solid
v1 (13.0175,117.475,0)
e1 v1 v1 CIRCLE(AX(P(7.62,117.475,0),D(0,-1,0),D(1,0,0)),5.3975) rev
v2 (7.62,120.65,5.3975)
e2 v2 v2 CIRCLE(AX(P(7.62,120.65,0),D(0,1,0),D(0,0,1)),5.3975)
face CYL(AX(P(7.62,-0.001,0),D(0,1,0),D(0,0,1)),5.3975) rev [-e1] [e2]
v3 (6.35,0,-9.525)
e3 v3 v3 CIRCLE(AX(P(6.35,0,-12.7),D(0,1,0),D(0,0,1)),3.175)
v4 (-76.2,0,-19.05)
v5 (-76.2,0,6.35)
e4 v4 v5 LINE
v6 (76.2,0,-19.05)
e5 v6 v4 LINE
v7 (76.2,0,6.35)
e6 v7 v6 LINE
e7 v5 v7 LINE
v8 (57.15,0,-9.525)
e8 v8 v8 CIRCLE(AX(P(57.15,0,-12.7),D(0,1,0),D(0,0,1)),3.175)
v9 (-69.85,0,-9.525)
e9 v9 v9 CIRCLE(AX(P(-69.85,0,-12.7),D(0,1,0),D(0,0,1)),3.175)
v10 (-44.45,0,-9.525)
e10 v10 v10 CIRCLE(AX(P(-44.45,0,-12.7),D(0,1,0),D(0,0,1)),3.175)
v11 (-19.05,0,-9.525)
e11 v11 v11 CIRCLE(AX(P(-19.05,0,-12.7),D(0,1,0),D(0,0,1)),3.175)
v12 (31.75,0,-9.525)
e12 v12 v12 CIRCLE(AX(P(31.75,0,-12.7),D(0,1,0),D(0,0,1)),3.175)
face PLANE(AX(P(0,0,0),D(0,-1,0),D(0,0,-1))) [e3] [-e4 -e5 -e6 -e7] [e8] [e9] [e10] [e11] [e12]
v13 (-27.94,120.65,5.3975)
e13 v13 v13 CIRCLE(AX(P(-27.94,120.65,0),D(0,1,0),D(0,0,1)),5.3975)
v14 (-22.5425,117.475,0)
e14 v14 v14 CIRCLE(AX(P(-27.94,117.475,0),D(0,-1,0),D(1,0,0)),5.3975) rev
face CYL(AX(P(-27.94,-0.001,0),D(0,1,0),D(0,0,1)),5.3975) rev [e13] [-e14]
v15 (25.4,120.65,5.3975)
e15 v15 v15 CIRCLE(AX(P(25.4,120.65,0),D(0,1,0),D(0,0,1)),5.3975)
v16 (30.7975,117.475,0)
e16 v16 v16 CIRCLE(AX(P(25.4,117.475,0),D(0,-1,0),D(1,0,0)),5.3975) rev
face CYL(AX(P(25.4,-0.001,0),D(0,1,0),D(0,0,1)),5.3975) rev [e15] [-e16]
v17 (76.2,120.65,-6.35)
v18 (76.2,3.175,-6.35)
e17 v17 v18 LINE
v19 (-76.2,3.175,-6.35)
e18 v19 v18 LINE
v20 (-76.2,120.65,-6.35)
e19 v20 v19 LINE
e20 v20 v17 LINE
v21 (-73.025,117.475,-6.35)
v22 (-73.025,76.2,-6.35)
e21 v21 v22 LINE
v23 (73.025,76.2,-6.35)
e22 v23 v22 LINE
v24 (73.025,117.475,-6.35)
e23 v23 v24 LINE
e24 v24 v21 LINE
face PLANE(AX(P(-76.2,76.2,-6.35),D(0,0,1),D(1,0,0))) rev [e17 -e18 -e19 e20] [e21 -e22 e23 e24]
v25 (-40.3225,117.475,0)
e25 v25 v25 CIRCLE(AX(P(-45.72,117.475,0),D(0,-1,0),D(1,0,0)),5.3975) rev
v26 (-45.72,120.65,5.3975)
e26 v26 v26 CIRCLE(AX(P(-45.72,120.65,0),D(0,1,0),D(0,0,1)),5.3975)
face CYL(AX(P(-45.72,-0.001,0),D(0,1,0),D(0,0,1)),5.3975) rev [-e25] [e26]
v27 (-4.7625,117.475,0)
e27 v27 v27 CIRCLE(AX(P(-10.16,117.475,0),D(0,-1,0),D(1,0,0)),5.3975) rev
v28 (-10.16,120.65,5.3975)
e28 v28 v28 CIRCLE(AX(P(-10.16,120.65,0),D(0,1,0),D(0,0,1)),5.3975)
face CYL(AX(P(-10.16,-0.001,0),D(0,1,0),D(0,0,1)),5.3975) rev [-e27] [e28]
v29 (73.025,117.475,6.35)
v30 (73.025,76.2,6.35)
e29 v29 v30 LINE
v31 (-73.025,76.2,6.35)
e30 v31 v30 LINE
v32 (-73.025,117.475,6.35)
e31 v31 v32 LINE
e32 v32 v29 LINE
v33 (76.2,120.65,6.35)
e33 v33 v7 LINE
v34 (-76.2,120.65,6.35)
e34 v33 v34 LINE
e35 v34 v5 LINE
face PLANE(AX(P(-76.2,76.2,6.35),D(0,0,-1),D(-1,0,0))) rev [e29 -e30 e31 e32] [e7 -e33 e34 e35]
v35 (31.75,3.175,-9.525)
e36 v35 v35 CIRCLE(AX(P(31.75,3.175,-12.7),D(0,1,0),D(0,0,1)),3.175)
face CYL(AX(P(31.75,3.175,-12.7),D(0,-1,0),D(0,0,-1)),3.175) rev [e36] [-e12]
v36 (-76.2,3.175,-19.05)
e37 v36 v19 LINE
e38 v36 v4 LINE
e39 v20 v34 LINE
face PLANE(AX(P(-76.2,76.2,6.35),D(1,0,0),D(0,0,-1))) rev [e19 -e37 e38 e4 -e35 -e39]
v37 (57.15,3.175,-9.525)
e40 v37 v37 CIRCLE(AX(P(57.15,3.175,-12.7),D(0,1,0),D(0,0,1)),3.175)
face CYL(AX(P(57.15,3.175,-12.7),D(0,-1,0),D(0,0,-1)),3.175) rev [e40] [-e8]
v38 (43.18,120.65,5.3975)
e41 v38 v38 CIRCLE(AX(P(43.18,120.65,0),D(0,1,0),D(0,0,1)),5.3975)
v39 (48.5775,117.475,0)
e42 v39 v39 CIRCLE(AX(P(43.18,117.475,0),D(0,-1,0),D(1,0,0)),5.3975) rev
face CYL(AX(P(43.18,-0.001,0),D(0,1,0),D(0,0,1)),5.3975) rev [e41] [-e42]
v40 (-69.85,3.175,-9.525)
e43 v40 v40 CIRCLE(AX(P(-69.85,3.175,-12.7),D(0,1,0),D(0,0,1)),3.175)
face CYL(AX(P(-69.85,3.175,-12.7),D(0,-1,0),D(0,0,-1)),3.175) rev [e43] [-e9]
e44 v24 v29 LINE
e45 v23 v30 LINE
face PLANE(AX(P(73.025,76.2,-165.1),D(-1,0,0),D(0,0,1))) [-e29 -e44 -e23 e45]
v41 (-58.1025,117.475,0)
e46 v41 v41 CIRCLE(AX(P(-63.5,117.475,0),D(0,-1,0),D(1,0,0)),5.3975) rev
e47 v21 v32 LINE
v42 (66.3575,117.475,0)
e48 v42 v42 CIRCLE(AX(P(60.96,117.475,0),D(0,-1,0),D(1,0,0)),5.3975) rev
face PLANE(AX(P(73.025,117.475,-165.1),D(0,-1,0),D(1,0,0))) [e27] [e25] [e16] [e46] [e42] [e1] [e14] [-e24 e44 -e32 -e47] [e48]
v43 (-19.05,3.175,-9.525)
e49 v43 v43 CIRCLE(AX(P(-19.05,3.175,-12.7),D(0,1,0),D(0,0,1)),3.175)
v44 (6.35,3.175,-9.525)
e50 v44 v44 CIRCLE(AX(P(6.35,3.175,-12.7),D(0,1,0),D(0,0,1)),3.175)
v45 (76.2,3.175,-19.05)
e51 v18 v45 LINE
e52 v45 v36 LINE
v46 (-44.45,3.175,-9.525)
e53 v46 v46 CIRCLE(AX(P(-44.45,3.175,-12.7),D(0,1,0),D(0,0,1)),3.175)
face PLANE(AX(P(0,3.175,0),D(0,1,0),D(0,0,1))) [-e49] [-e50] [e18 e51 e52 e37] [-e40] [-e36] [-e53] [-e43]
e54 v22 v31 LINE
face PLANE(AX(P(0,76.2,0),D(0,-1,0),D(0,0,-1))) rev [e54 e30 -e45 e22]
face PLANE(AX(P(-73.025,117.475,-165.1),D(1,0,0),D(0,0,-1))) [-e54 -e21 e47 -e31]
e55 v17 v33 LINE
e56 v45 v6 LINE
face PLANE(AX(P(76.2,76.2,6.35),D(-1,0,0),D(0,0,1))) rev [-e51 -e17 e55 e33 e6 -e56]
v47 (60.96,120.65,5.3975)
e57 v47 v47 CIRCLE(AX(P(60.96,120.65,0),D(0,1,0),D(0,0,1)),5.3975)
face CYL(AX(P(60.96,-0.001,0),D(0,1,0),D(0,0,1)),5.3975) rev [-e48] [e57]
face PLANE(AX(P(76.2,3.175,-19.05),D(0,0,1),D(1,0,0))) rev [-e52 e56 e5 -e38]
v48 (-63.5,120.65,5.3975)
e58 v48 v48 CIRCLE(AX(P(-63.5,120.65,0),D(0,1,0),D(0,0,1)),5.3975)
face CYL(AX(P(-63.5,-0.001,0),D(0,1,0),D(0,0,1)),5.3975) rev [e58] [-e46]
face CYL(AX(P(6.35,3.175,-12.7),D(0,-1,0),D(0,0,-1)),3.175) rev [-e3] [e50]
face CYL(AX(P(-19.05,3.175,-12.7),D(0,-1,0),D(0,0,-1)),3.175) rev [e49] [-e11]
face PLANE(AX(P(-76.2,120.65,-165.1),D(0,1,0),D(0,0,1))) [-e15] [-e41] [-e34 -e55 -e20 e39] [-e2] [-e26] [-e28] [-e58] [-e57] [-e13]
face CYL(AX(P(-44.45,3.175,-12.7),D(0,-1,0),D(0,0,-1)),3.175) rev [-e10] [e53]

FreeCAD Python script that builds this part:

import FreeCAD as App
import Part
import Sketcher
Q = App.Units.Quantity

doc = App.newDocument("Part")
params = doc.addObject("Spreadsheet::Sheet", "Params")
for row, (alias, value) in enumerate([
    ("sketch1_width", "6 in"),
    ("sketch1_height", "0.5 in"),
    ("pad1_length", "3 in"),
    ("sketch2_diameter", "0.25 in"),
    ("sketch2_width", "6 in"),
    ("sketch2_height", "0.5 in"),
    ("pad2_length", "0.125 in"),
    ("sketch3_width", "6 in"),
    ("sketch3_width2", "5.75 in"),
    ("sketch3_height", "1.75 in"),
    ("sketch3_height2", "1.625 in"),
    ("pad3_length", "0.5 in"),
    ("sketch4_diameter", "0.425 in"),
    ("sketch5_diameter", "0.425 in"),
    ("sketch6_diameter", "0.425 in"),
    ("sketch7_diameter", "0.425 in"),
    ("sketch8_diameter", "0.425 in"),
    ("sketch9_diameter", "0.425 in"),
    ("sketch10_diameter", "0.425 in"),
    ("sketch11_diameter", "0.425 in"),
], start=1):
    params.set(f"A{row}", alias)
    params.set(f"B{row}", "=" + value)
    params.setAlias(f"B{row}", alias)

body = doc.addObject("PartDesign::Body", "Body")

# Sketch on XZ plane
sketch1 = doc.addObject("Sketcher::SketchObject", "Sketch")
body.addObject(sketch1)
sketch1.AttachmentSupport = (doc.XZ_Plane, [""])
sketch1.MapMode = "FlatFace"
sketch1.addGeometry([
    Part.LineSegment(App.Vector(-76, -6, 0), App.Vector(-76, 6, 0)),
    Part.LineSegment(App.Vector(-76, 6, 0), App.Vector(76, 6, 0)),
    Part.LineSegment(App.Vector(76, 6, 0), App.Vector(76, -6, 0)),
    Part.LineSegment(App.Vector(76, -6, 0), App.Vector(-76, -6, 0)),
], False)
sketch1.addConstraint([
    Sketcher.Constraint("Coincident", 0, 2, 1, 1),
    Sketcher.Constraint("Coincident", 1, 2, 2, 1),
    Sketcher.Constraint("Coincident", 2, 2, 3, 1),
    Sketcher.Constraint("Coincident", 3, 2, 0, 1),
    Sketcher.Constraint("Vertical", 0),
    Sketcher.Constraint("Horizontal", 1),
    Sketcher.Constraint("Vertical", 2),
    Sketcher.Constraint("Horizontal", 3),
    Sketcher.Constraint("Symmetric", 0, 2, 2, 2, -1, 1),
    Sketcher.Constraint("DistanceX", 1, 1, 1, 2, Q("6 in")),
    Sketcher.Constraint("DistanceY", 0, 1, 0, 2, Q("0.5 in")),
])
sketch1.setExpression("Constraints[9]", "Params.sketch1_width")
sketch1.setExpression("Constraints[10]", "Params.sketch1_height")
pad1 = doc.addObject("PartDesign::Pad", "Pad")
body.addObject(pad1)
pad1.Profile = sketch1
pad1.setExpression("Length", "Params.pad1_length")
pad1.Reversed = True

# Sketch on XZ plane
sketch2 = doc.addObject("Sketcher::SketchObject", "Sketch001")
body.addObject(sketch2)
sketch2.AttachmentSupport = (doc.XZ_Plane, [""])
sketch2.MapMode = "FlatFace"
sketch2.addGeometry([
    Part.LineSegment(App.Vector(-76.2, -6.3, 0), App.Vector(76.2, -6.3, 0)),  # 0
    Part.LineSegment(App.Vector(76.2, -6.3, 0), App.Vector(76.2, -19.1, 0)),  # 1
    Part.LineSegment(App.Vector(76.2, -19.1, 0), App.Vector(-76.2, -19.1, 0)),  # 2
    Part.LineSegment(App.Vector(-76.2, -19.1, 0), App.Vector(-76.2, -6.3, 0)),  # 3
    Part.Circle(App.Vector(-69.8, -12.7, 0), App.Vector(0, 0, 1), 3.2),  # 4
    Part.Circle(App.Vector(-44.5, -12.7, 0), App.Vector(0, 0, 1), 3.2),  # 5
    Part.Circle(App.Vector(-19.1, -12.7, 0), App.Vector(0, 0, 1), 3.2),  # 6
    Part.Circle(App.Vector(6.3, -12.7, 0), App.Vector(0, 0, 1), 3.2),  # 7
    Part.Circle(App.Vector(31.8, -12.7, 0), App.Vector(0, 0, 1), 3.2),  # 8
    Part.Circle(App.Vector(57.1, -12.7, 0), App.Vector(0, 0, 1), 3.2),  # 9
], False)
sketch2.addConstraint([
    Sketcher.Constraint("Coincident", 0, 2, 1, 1),
    Sketcher.Constraint("Coincident", 1, 2, 2, 1),
    Sketcher.Constraint("Coincident", 2, 2, 3, 1),
    Sketcher.Constraint("Coincident", 3, 2, 0, 1),
    Sketcher.Constraint("Horizontal", 0),
    Sketcher.Constraint("Vertical", 1),
    Sketcher.Constraint("Horizontal", 2),
    Sketcher.Constraint("Vertical", 3),
    Sketcher.Constraint("Equal", 4, 5),
    Sketcher.Constraint("Equal", 5, 6),
    Sketcher.Constraint("Equal", 6, 7),
    Sketcher.Constraint("Equal", 7, 8),
    Sketcher.Constraint("Equal", 8, 9),
    Sketcher.Constraint("Horizontal", 4, 3, 5, 3),
    Sketcher.Constraint("Horizontal", 5, 3, 6, 3),
    Sketcher.Constraint("Horizontal", 6, 3, 7, 3),
    Sketcher.Constraint("Horizontal", 7, 3, 8, 3),
    Sketcher.Constraint("Horizontal", 8, 3, 9, 3),
    Sketcher.Constraint("Diameter", 4, Q("0.25 in")),
    Sketcher.Constraint("DistanceX", 0, 1, 0, 2, Q("6 in")),
    Sketcher.Constraint("DistanceY", 1, 2, 1, 1, Q("0.5 in")),
    Sketcher.Constraint("DistanceX", -1, 1, 0, 2, Q("3 in")),
    Sketcher.Constraint("DistanceX", 4, 3, 5, 3, Q("1 in")),
    Sketcher.Constraint("DistanceX", 5, 3, 6, 3, Q("1 in")),
    Sketcher.Constraint("DistanceX", 6, 3, 7, 3, Q("1 in")),
    Sketcher.Constraint("DistanceX", 7, 3, 8, 3, Q("1 in")),
    Sketcher.Constraint("DistanceX", 8, 3, 9, 3, Q("1 in")),
    Sketcher.Constraint("DistanceY", 4, 3, -1, 1, Q("0.5 in")),
    Sketcher.Constraint("DistanceX", 4, 3, -1, 1, Q("2.75 in")),
    Sketcher.Constraint("DistanceY", 0, 2, -1, 1, Q("0.25 in")),
])
sketch2.setExpression("Constraints[18]", "Params.sketch2_diameter")
sketch2.setExpression("Constraints[19]", "Params.sketch2_width")
sketch2.setExpression("Constraints[20]", "Params.sketch2_height")
pad2 = doc.addObject("PartDesign::Pad", "Pad001")
body.addObject(pad2)
pad2.Profile = sketch2
pad2.setExpression("Length", "Params.pad2_length")
pad2.Reversed = True

# Sketch on XY plane
sketch3 = doc.addObject("Sketcher::SketchObject", "Sketch002")
body.addObject(sketch3)
sketch3.AttachmentSupport = (doc.XY_Plane, [""])
sketch3.MapMode = "FlatFace"
sketch3.AttachmentOffset = App.Placement(App.Vector(0, 0, 0.25 * 25.4), App.Rotation())
sketch3.addGeometry([
    Part.LineSegment(App.Vector(-76.2, 120.7, 0), App.Vector(-76.2, 76.2, 0)),  # 0
    Part.LineSegment(App.Vector(-76.2, 76.2, 0), App.Vector(-73, 76.2, 0)),  # 1
    Part.LineSegment(App.Vector(-73, 76.2, 0), App.Vector(-73, 117.5, 0)),  # 2
    Part.LineSegment(App.Vector(-73, 117.5, 0), App.Vector(73, 117.5, 0)),  # 3
    Part.LineSegment(App.Vector(73, 117.5, 0), App.Vector(73, 76.2, 0)),  # 4
    Part.LineSegment(App.Vector(73, 76.2, 0), App.Vector(76.2, 76.2, 0)),  # 5
    Part.LineSegment(App.Vector(76.2, 76.2, 0), App.Vector(76.2, 120.7, 0)),  # 6
    Part.LineSegment(App.Vector(76.2, 120.7, 0), App.Vector(-76.2, 120.7, 0)),  # 7
], False)
sketch3.addConstraint([
    Sketcher.Constraint("Coincident", 0, 2, 1, 1),
    Sketcher.Constraint("Coincident", 1, 2, 2, 1),
    Sketcher.Constraint("Coincident", 2, 2, 3, 1),
    Sketcher.Constraint("Coincident", 3, 2, 4, 1),
    Sketcher.Constraint("Coincident", 4, 2, 5, 1),
    Sketcher.Constraint("Coincident", 5, 2, 6, 1),
    Sketcher.Constraint("Coincident", 6, 2, 7, 1),
    Sketcher.Constraint("Coincident", 7, 2, 0, 1),
    Sketcher.Constraint("Vertical", 0),
    Sketcher.Constraint("Horizontal", 1),
    Sketcher.Constraint("Vertical", 2),
    Sketcher.Constraint("Horizontal", 3),
    Sketcher.Constraint("Vertical", 4),
    Sketcher.Constraint("Horizontal", 5),
    Sketcher.Constraint("Vertical", 6),
    Sketcher.Constraint("Horizontal", 7),
    Sketcher.Constraint("Symmetric", 1, 2, 4, 2, -2),
    Sketcher.Constraint("Equal", 1, 5),
    Sketcher.Constraint("DistanceX", 7, 2, 7, 1, Q("6 in")),
    Sketcher.Constraint("DistanceY", -1, 1, 0, 2, Q("3 in")),
    Sketcher.Constraint("DistanceX", 3, 1, 3, 2, Q("5.75 in")),
    Sketcher.Constraint("DistanceY", 0, 2, 0, 1, Q("1.75 in")),
    Sketcher.Constraint("DistanceY", 2, 1, 2, 2, Q("1.625 in")),
])
sketch3.setExpression("Constraints[18]", "Params.sketch3_width")
sketch3.setExpression("Constraints[20]", "Params.sketch3_width2")
sketch3.setExpression("Constraints[21]", "Params.sketch3_height")
sketch3.setExpression("Constraints[22]", "Params.sketch3_height2")
pad3 = doc.addObject("PartDesign::Pad", "Pad002")
body.addObject(pad3)
pad3.Profile = sketch3
pad3.setExpression("Length", "Params.pad3_length")
pad3.Reversed = True

# Sketch on XZ plane
sketch4 = doc.addObject("Sketcher::SketchObject", "Sketch003")
body.addObject(sketch4)
sketch4.AttachmentSupport = (doc.XZ_Plane, [""])
sketch4.MapMode = "FlatFace"
sketch4.AttachmentOffset = App.Placement(App.Vector(0, 0, -4.75 * 25.4), App.Rotation())
sketch4.addGeometry(Part.Circle(App.Vector(-64, 0, 0), App.Vector(0, 0, 1), 5), False)
sketch4.addConstraint([
    Sketcher.Constraint("PointOnObject", 0, 3, -1),
    Sketcher.Constraint("Diameter", 0, Q("0.425 in")),
    Sketcher.Constraint("DistanceX", 0, 3, -1, 1, Q("2.5 in")),
])
sketch4.setExpression("Constraints[1]", "Params.sketch4_diameter")
pocket1 = doc.addObject("PartDesign::Pocket", "Pocket")
body.addObject(pocket1)
pocket1.Profile = sketch4
pocket1.Type = "UpToFirst"
pocket1.Reversed = True

# Sketch on XZ plane
sketch5 = doc.addObject("Sketcher::SketchObject", "Sketch004")
body.addObject(sketch5)
sketch5.AttachmentSupport = (doc.XZ_Plane, [""])
sketch5.MapMode = "FlatFace"
sketch5.AttachmentOffset = App.Placement(App.Vector(0, 0, -4.75 * 25.4), App.Rotation())
sketch5.addGeometry(Part.Circle(App.Vector(-46, 0, 0), App.Vector(0, 0, 1), 5), False)
sketch5.addConstraint([
    Sketcher.Constraint("PointOnObject", 0, 3, -1),
    Sketcher.Constraint("Diameter", 0, Q("0.425 in")),
    Sketcher.Constraint("DistanceX", 0, 3, -1, 1, Q("1.8 in")),
])
sketch5.setExpression("Constraints[1]", "Params.sketch5_diameter")
pocket2 = doc.addObject("PartDesign::Pocket", "Pocket001")
body.addObject(pocket2)
pocket2.Profile = sketch5
pocket2.Type = "UpToFirst"
pocket2.Reversed = True

# Sketch on XZ plane
sketch6 = doc.addObject("Sketcher::SketchObject", "Sketch005")
body.addObject(sketch6)
sketch6.AttachmentSupport = (doc.XZ_Plane, [""])
sketch6.MapMode = "FlatFace"
sketch6.AttachmentOffset = App.Placement(App.Vector(0, 0, -4.75 * 25.4), App.Rotation())
sketch6.addGeometry(Part.Circle(App.Vector(-28, 0, 0), App.Vector(0, 0, 1), 5), False)
sketch6.addConstraint([
    Sketcher.Constraint("PointOnObject", 0, 3, -1),
    Sketcher.Constraint("Diameter", 0, Q("0.425 in")),
    Sketcher.Constraint("DistanceX", 0, 3, -1, 1, Q("1.1 in")),
])
sketch6.setExpression("Constraints[1]", "Params.sketch6_diameter")
pocket3 = doc.addObject("PartDesign::Pocket", "Pocket002")
body.addObject(pocket3)
pocket3.Profile = sketch6
pocket3.Type = "UpToFirst"
pocket3.Reversed = True

# Sketch on XZ plane
sketch7 = doc.addObject("Sketcher::SketchObject", "Sketch006")
body.addObject(sketch7)
sketch7.AttachmentSupport = (doc.XZ_Plane, [""])
sketch7.MapMode = "FlatFace"
sketch7.AttachmentOffset = App.Placement(App.Vector(0, 0, -4.75 * 25.4), App.Rotation())
sketch7.addGeometry(Part.Circle(App.Vector(-10, 0, 0), App.Vector(0, 0, 1), 5), False)
sketch7.addConstraint([
    Sketcher.Constraint("PointOnObject", 0, 3, -1),
    Sketcher.Constraint("Diameter", 0, Q("0.425 in")),
    Sketcher.Constraint("DistanceX", 0, 3, -1, 1, Q("0.4 in")),
])
sketch7.setExpression("Constraints[1]", "Params.sketch7_diameter")
pocket4 = doc.addObject("PartDesign::Pocket", "Pocket003")
body.addObject(pocket4)
pocket4.Profile = sketch7
pocket4.Type = "UpToFirst"
pocket4.Reversed = True

# Sketch on XZ plane
sketch8 = doc.addObject("Sketcher::SketchObject", "Sketch007")
body.addObject(sketch8)
sketch8.AttachmentSupport = (doc.XZ_Plane, [""])
sketch8.MapMode = "FlatFace"
sketch8.AttachmentOffset = App.Placement(App.Vector(0, 0, -4.75 * 25.4), App.Rotation())
sketch8.addGeometry(Part.Circle(App.Vector(8, 0, 0), App.Vector(0, 0, 1), 5), False)
sketch8.addConstraint([
    Sketcher.Constraint("PointOnObject", 0, 3, -1),
    Sketcher.Constraint("Diameter", 0, Q("0.425 in")),
    Sketcher.Constraint("DistanceX", -1, 1, 0, 3, Q("0.3 in")),
])
sketch8.setExpression("Constraints[1]", "Params.sketch8_diameter")
pocket5 = doc.addObject("PartDesign::Pocket", "Pocket004")
body.addObject(pocket5)
pocket5.Profile = sketch8
pocket5.Type = "UpToFirst"
pocket5.Reversed = True

# Sketch on XZ plane
sketch9 = doc.addObject("Sketcher::SketchObject", "Sketch008")
body.addObject(sketch9)
sketch9.AttachmentSupport = (doc.XZ_Plane, [""])
sketch9.MapMode = "FlatFace"
sketch9.AttachmentOffset = App.Placement(App.Vector(0, 0, -4.75 * 25.4), App.Rotation())
sketch9.addGeometry(Part.Circle(App.Vector(25, 0, 0), App.Vector(0, 0, 1), 5), False)
sketch9.addConstraint([
    Sketcher.Constraint("PointOnObject", 0, 3, -1),
    Sketcher.Constraint("Diameter", 0, Q("0.425 in")),
    Sketcher.Constraint("DistanceX", -1, 1, 0, 3, Q("1 in")),
])
sketch9.setExpression("Constraints[1]", "Params.sketch9_diameter")
pocket6 = doc.addObject("PartDesign::Pocket", "Pocket005")
body.addObject(pocket6)
pocket6.Profile = sketch9
pocket6.Type = "UpToFirst"
pocket6.Reversed = True

# Sketch on XZ plane
sketch10 = doc.addObject("Sketcher::SketchObject", "Sketch009")
body.addObject(sketch10)
sketch10.AttachmentSupport = (doc.XZ_Plane, [""])
sketch10.MapMode = "FlatFace"
sketch10.AttachmentOffset = App.Placement(App.Vector(0, 0, -4.75 * 25.4), App.Rotation())
sketch10.addGeometry(Part.Circle(App.Vector(43, 0, 0), App.Vector(0, 0, 1), 5), False)
sketch10.addConstraint([
    Sketcher.Constraint("PointOnObject", 0, 3, -1),
    Sketcher.Constraint("Diameter", 0, Q("0.425 in")),
    Sketcher.Constraint("DistanceX", -1, 1, 0, 3, Q("1.7 in")),
])
sketch10.setExpression("Constraints[1]", "Params.sketch10_diameter")
pocket7 = doc.addObject("PartDesign::Pocket", "Pocket006")
body.addObject(pocket7)
pocket7.Profile = sketch10
pocket7.Type = "UpToFirst"
pocket7.Reversed = True

# Sketch on XZ plane
sketch11 = doc.addObject("Sketcher::SketchObject", "Sketch010")
body.addObject(sketch11)
sketch11.AttachmentSupport = (doc.XZ_Plane, [""])
sketch11.MapMode = "FlatFace"
sketch11.AttachmentOffset = App.Placement(App.Vector(0, 0, -4.75 * 25.4), App.Rotation())
sketch11.addGeometry(Part.Circle(App.Vector(61, 0, 0), App.Vector(0, 0, 1), 5), False)
sketch11.addConstraint([
    Sketcher.Constraint("PointOnObject", 0, 3, -1),
    Sketcher.Constraint("Diameter", 0, Q("0.425 in")),
    Sketcher.Constraint("DistanceX", -1, 1, 0, 3, Q("2.4 in")),
])
sketch11.setExpression("Constraints[1]", "Params.sketch11_diameter")
pocket8 = doc.addObject("PartDesign::Pocket", "Pocket007")
body.addObject(pocket8)
pocket8.Profile = sketch11
pocket8.Type = "UpToFirst"
pocket8.Reversed = True

doc.recompute()
